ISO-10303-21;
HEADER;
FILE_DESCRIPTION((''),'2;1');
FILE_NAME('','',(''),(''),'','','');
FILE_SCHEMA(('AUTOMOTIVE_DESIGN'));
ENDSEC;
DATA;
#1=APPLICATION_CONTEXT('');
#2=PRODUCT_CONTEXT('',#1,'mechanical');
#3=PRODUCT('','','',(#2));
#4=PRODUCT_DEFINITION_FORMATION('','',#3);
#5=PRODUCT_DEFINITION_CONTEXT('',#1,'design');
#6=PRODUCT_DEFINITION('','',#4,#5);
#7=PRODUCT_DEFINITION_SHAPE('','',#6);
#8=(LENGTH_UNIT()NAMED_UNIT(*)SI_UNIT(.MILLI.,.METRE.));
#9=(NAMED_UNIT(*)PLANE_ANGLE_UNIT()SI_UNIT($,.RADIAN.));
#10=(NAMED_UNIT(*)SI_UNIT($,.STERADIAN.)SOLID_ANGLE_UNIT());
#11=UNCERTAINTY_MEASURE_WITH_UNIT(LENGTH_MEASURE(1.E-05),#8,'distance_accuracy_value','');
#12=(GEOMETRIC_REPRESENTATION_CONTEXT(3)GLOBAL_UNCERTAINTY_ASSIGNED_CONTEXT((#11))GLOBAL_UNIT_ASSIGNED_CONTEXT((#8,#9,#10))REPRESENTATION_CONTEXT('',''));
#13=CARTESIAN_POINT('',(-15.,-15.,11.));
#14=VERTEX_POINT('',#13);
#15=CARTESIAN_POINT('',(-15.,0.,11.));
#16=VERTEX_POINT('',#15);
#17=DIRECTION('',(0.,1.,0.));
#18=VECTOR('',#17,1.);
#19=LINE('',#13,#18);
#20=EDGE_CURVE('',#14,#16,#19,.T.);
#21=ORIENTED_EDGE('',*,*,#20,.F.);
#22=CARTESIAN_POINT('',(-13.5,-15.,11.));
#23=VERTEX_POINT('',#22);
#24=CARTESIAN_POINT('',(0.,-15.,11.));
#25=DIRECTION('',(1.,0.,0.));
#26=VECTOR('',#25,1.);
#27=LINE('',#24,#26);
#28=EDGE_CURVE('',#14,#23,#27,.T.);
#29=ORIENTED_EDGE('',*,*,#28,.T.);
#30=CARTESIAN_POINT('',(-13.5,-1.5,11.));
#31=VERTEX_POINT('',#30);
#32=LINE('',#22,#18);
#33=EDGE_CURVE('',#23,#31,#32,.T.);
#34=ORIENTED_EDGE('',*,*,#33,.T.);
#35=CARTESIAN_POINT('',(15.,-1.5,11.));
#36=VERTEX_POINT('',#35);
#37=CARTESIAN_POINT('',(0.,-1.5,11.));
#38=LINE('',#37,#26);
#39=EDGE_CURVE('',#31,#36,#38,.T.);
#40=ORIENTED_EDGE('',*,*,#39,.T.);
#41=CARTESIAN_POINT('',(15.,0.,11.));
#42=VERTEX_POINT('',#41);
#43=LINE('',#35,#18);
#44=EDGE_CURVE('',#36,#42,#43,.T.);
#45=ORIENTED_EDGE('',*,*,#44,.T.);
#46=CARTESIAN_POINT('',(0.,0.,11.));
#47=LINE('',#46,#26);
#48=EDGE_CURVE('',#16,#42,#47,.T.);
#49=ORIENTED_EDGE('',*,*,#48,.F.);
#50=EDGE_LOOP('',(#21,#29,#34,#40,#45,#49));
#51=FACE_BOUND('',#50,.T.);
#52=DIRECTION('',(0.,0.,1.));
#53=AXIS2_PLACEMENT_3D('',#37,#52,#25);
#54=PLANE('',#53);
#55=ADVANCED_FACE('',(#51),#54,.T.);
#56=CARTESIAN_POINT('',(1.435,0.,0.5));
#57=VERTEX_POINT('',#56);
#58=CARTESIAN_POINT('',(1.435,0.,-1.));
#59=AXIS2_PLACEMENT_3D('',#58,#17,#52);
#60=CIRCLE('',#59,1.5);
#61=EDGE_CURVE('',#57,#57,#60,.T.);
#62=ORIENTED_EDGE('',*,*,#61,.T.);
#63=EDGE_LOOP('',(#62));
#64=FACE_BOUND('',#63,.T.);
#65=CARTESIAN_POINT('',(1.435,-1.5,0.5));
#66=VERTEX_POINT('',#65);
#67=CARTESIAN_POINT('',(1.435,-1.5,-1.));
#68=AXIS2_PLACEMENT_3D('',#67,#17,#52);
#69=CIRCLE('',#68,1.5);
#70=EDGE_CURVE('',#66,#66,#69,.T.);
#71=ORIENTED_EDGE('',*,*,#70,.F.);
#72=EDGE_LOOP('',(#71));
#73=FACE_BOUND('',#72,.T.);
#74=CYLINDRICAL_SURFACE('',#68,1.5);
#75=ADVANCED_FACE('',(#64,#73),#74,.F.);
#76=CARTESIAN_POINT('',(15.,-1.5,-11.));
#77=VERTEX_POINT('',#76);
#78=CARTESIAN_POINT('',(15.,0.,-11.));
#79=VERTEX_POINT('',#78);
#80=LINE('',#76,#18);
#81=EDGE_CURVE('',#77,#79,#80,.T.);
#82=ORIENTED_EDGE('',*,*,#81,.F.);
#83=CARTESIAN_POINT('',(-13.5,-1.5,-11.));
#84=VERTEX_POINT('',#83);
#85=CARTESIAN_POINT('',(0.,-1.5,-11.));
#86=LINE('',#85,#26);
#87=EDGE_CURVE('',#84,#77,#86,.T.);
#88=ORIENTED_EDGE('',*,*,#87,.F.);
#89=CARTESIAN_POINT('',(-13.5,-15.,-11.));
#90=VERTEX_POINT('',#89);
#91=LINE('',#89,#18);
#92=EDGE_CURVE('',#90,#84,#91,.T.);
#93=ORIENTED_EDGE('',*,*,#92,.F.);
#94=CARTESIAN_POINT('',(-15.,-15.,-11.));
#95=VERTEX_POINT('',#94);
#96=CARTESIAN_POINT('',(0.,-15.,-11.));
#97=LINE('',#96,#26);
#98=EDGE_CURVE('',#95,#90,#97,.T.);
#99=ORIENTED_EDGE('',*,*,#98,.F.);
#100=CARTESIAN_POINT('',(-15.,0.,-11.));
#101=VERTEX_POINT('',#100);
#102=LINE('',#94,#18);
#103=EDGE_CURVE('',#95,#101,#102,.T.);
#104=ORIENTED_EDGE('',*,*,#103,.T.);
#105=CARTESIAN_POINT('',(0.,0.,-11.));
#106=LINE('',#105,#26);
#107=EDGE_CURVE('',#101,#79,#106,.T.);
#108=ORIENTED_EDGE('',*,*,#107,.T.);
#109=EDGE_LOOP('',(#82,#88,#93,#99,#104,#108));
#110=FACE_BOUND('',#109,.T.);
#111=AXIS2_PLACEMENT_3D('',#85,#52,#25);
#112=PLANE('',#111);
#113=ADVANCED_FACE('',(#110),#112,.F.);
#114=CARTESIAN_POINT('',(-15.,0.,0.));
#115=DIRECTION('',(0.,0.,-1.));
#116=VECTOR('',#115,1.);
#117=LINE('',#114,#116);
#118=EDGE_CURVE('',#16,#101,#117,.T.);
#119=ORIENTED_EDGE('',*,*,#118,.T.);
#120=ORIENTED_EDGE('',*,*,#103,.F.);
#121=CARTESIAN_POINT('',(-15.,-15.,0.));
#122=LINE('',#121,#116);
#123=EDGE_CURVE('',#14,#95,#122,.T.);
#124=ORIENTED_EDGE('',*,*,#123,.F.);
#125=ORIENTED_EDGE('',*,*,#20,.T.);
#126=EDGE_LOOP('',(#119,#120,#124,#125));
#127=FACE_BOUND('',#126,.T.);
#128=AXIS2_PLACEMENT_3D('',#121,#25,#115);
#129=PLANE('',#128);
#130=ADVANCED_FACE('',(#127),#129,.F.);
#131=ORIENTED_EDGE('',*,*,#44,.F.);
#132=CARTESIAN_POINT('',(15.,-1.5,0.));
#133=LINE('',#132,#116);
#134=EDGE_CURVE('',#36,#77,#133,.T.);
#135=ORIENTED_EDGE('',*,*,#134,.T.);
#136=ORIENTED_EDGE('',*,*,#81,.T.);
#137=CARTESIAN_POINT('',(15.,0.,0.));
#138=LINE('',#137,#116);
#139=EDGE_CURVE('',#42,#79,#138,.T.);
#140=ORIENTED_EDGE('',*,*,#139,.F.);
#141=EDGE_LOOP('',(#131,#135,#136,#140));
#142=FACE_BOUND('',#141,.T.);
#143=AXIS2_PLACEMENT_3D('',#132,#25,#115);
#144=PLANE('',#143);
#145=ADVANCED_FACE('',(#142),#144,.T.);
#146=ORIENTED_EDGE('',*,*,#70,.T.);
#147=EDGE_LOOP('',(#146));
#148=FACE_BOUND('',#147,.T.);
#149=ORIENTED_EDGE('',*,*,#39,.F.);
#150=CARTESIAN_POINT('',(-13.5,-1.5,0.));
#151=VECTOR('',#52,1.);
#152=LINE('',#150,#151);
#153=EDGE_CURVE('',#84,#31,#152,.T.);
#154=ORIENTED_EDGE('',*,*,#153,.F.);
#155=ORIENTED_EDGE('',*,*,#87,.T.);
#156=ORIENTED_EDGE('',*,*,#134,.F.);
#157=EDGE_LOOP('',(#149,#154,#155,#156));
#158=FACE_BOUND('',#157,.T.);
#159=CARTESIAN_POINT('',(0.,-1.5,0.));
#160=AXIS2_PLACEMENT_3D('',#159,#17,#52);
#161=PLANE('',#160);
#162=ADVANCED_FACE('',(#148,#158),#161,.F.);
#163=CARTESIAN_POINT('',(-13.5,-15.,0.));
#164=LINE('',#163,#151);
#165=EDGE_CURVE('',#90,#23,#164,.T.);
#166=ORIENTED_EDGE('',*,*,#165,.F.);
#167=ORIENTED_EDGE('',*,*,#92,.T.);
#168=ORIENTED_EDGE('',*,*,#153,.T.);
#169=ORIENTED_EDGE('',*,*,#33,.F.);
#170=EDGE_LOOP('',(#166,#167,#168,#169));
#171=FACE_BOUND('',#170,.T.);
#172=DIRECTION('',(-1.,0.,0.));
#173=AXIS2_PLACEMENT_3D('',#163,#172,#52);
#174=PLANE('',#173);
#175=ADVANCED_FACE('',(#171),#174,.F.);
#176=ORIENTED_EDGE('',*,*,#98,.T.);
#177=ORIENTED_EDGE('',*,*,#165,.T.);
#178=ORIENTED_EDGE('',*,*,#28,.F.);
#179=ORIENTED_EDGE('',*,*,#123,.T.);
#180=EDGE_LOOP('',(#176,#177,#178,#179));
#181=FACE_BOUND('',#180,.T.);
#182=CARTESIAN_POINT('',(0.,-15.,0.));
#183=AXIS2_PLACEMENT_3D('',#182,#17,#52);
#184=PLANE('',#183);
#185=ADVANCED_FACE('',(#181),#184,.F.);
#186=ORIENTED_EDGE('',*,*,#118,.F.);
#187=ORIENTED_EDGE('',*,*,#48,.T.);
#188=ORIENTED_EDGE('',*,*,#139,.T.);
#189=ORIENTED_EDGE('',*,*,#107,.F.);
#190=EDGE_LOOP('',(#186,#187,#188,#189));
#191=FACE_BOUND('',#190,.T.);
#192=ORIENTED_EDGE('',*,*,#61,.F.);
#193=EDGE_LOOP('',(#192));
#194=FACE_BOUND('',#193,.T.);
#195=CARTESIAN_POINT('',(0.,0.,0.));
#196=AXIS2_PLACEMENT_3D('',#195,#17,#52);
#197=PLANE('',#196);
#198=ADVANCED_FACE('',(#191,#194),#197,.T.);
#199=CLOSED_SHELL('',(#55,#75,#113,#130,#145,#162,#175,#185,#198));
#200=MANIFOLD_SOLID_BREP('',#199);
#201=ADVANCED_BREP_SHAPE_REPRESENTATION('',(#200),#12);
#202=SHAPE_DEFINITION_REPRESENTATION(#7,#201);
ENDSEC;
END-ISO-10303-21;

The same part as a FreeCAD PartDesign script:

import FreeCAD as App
import Part
import Sketcher


def add_polygon(sketch, points):
    """Adds a closed chain of lines whose ends are joined by coincident constraints."""
    first, n = sketch.GeometryCount, len(points)
    for a, b in zip(points, points[1:] + points[:1]):
        sketch.addGeometry(Part.LineSegment(App.Vector(*a, 0), App.Vector(*b, 0)), False)
    for i in range(n):
        sketch.addConstraint(Sketcher.Constraint("Coincident", first + i, 2, first + (i + 1) % n, 1))

doc = App.newDocument("Part")
body = doc.addObject("PartDesign::Body", "Body")

# Sketch on XZ plane
sketch1 = body.newObject("Sketcher::SketchObject", "Sketch")
sketch1.AttachmentSupport = (doc.getObject("XZ_Plane"), [""])
sketch1.MapMode = "FlatFace"
add_polygon(sketch1, [(-13.5, -11), (-13.5, 11), (15, 11), (15, -11)])  # lines 0-3
sketch1.addGeometry(Part.Circle(App.Vector(1.435, -1, 0), App.Vector(0, 0, 1), 1.5), False)  # 4
sketch1.addConstraint([
    Sketcher.Constraint("Vertical", 0),
    Sketcher.Constraint("Horizontal", 1),
    Sketcher.Constraint("Vertical", 2),
    Sketcher.Constraint("Horizontal", 3),
    Sketcher.Constraint("Diameter", 4, 3.0),
    Sketcher.Constraint("DistanceY", 0, 1, 0, 2, 22.0),
    Sketcher.Constraint("DistanceX", 1, 1, 1, 2, 28.5),
    Sketcher.Constraint("DistanceY", 4, 3, -1, 1, 1.0),
    Sketcher.Constraint("DistanceY", -1, 1, 0, 2, 11.0),
    Sketcher.Constraint("DistanceX", -1, 1, 1, 2, 15.0),
    Sketcher.Constraint("DistanceX", -1, 1, 4, 3, 1.435),
])
pad1 = body.newObject("PartDesign::Pad", "Pad")
pad1.Profile = sketch1
pad1.Length = 1.5

# Sketch on XZ plane
sketch2 = body.newObject("Sketcher::SketchObject", "Sketch001")
sketch2.AttachmentSupport = (doc.getObject("XZ_Plane"), [""])
sketch2.MapMode = "FlatFace"
add_polygon(sketch2, [(-15, -11), (-15, 11), (-13.5, 11), (-13.5, -11)])  # lines 0-3
sketch2.addConstraint([
    Sketcher.Constraint("Vertical", 0),
    Sketcher.Constraint("Horizontal", 1),
    Sketcher.Constraint("Vertical", 2),
    Sketcher.Constraint("Horizontal", 3),
    Sketcher.Constraint("DistanceY", 0, 1, 0, 2, 22.0),
    Sketcher.Constraint("DistanceX", 1, 1, 1, 2, 1.5),
    Sketcher.Constraint("DistanceX", 0, 2, -1, 1, 15.0),
    Sketcher.Constraint("DistanceY", -1, 1, 0, 2, 11.0),
])
pad2 = body.newObject("PartDesign::Pad", "Pad001")
pad2.Profile = sketch2
pad2.Length = 15

doc.recompute()
